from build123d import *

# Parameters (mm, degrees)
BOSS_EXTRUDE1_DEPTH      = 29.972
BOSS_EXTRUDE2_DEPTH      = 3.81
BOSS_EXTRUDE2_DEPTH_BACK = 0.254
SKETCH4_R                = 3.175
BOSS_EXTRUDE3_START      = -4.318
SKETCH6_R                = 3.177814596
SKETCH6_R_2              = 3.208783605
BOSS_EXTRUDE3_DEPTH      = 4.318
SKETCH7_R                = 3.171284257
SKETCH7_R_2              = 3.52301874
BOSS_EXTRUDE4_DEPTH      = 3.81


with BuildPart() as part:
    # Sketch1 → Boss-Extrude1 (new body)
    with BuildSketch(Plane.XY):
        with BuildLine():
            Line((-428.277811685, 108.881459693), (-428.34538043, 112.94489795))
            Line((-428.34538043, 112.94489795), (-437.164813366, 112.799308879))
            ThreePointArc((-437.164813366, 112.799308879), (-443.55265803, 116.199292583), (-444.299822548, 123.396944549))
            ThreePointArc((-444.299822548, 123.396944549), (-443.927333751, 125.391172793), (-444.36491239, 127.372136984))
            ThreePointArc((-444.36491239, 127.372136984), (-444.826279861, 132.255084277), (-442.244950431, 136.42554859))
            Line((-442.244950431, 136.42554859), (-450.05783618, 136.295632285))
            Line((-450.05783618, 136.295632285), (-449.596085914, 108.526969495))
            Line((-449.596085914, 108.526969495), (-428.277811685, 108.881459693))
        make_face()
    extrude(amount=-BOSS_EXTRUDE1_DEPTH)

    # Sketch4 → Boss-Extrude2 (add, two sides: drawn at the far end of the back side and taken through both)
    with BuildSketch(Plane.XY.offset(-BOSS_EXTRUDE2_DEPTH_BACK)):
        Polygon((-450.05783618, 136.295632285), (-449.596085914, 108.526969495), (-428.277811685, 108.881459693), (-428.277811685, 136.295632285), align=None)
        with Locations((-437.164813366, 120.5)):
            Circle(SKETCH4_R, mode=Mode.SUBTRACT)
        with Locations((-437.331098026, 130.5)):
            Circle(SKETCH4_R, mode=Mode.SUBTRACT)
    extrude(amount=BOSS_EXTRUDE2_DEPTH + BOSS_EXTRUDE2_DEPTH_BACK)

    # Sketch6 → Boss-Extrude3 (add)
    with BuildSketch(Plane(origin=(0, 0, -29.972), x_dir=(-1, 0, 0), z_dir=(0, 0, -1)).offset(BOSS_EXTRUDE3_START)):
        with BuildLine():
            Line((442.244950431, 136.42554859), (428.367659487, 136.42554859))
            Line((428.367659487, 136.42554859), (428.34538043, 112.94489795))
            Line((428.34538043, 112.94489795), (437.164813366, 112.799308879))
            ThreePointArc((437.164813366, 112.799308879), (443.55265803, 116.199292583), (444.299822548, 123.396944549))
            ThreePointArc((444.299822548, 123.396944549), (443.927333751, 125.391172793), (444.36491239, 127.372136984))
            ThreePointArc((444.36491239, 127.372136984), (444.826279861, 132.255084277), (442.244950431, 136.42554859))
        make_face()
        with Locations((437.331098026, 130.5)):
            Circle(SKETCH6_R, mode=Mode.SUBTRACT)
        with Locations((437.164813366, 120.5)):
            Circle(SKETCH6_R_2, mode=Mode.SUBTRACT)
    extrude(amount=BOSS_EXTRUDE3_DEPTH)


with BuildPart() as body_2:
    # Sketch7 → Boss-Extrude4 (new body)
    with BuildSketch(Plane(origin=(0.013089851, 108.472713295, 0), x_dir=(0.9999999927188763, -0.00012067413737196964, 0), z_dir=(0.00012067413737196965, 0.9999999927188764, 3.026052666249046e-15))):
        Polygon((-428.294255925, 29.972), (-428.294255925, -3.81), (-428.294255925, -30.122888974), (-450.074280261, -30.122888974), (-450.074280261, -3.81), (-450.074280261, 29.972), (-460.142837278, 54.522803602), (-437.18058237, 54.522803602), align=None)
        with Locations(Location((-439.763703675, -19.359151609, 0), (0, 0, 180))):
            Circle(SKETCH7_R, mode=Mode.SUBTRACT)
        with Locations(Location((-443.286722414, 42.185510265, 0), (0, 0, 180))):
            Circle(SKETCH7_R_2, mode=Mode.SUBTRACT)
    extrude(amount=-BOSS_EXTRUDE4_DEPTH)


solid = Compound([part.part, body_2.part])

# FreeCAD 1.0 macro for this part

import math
import FreeCAD as App
import Part
import Sketcher
from FreeCAD import Vector
Q = App.Units.Quantity

doc = App.newDocument("Part")
params = doc.addObject("Spreadsheet::Sheet", "Params")
for row, (alias, value) in enumerate([
    ("sketch1_radius", "0.2 in"),
    ("sketch1_length", "0.16 in"),
    ("pad1_length", "1.18 in"),
    ("sketch2_diameter", "0.25 in"),
    ("pad2_length", "0.15 in"),
    ("pad2_length2", "0.01 in"),
    ("sketch3_radius", "0.2 in"),
    ("pad3_length", "0.17 in"),
    ("pad4_length", "0.15 in"),
], start=1):
    params.set(f"A{row}", alias)
    params.set(f"B{row}", "=" + value)
    params.setAlias(f"B{row}", alias)

body = doc.addObject("PartDesign::Body", "Body")

# Sketch on XY plane
sketch1 = body.newObject("Sketcher::SketchObject", "Sketch")
sketch1.AttachmentSupport = (doc.getObject("XY_Plane"), [""])
sketch1.MapMode = "FlatFace"
sketch1.addGeometry([
    Part.LineSegment(Vector(-428.3, 108.9, 0), Vector(-428.3, 112.9, 0)),  # 0
    Part.LineSegment(Vector(-428.3, 112.9, 0), Vector(-437.2, 112.8, 0)),  # 1
    Part.ArcOfCircle(Part.Circle(Vector(-437.2, 120.5, 0), Vector(0, 0, 1), 7.7), math.radians(158), math.radians(270)),  # 2
    Part.ArcOfCircle(Part.Circle(Vector(-449, 125.3, 0), Vector(0, 0, 1), 5.1), math.radians(-22), math.radians(24)),  # 3
    Part.ArcOfCircle(Part.Circle(Vector(-437.3, 130.5, 0), Vector(0, 0, 1), 7.7), math.radians(130), math.radians(204)),  # 4
    Part.LineSegment(Vector(-442.2, 136.4, 0), Vector(-450.1, 136.3, 0)),  # 5
    Part.LineSegment(Vector(-450.1, 136.3, 0), Vector(-449.6, 108.5, 0)),  # 6
    Part.LineSegment(Vector(-449.6, 108.5, 0), Vector(-428.3, 108.9, 0)),  # 7
], False)
sketch1.addConstraint([
    Sketcher.Constraint("Coincident", 0, 2, 1, 1),
    Sketcher.Constraint("Coincident", 1, 2, 2, 2),
    Sketcher.Constraint("Tangent", 2, 1, 3, 1),
    Sketcher.Constraint("Tangent", 3, 2, 4, 2),
    Sketcher.Constraint("Coincident", 4, 1, 5, 1),
    Sketcher.Constraint("Coincident", 5, 2, 6, 1),
    Sketcher.Constraint("Coincident", 6, 2, 7, 1),
    Sketcher.Constraint("Coincident", 7, 2, 0, 1),
    Sketcher.Constraint("Perpendicular", 0, 5),
    Sketcher.Constraint("Perpendicular", 5, 6),
    Sketcher.Constraint("Perpendicular", 6, 7),
    Sketcher.Constraint("Vertical", 2, 3, 1, 2),
    Sketcher.Constraint("Radius", 3, Q("0.2 in")),
    Sketcher.Constraint("Distance", 0, Q("0.16 in")),
    Sketcher.Constraint("Radius", 2, 7.700691),
    Sketcher.Constraint("Radius", 4, 7.697926),
    Sketcher.Constraint("Distance", 6, 27.772502),
    Sketcher.Constraint("DistanceY", -1, 1, 2, 3, 120.5),
    Sketcher.Constraint("DistanceX", 4, 3, -1, 1, 437.331098),
    Sketcher.Constraint("DistanceY", -1, 1, 4, 3, 130.5),
    Sketcher.Constraint("DistanceX", 3, 2, 2, 3, 7.200099),
    Sketcher.Constraint("DistanceX", 1, 2, 7, 2, 8.887002),
    Sketcher.Constraint("Distance", 7, 21.321221),
    Sketcher.Constraint("DistanceX", 0, 2, -1, 1, 428.34538),
    Sketcher.Constraint("DistanceX", 4, 1, -1, 1, 442.24495),
])
sketch1.setExpression("Constraints[12]", "Params.sketch1_radius")
sketch1.setExpression("Constraints[13]", "Params.sketch1_length")
pad1 = body.newObject("PartDesign::Pad", "Pad")
pad1.Profile = sketch1
pad1.setExpression("Length", "Params.pad1_length")
pad1.Reversed = True

# Sketch on XY plane
sketch2 = body.newObject("Sketcher::SketchObject", "Sketch001")
sketch2.AttachmentSupport = (doc.getObject("XY_Plane"), [""])
sketch2.MapMode = "FlatFace"
sketch2.addGeometry([
    Part.LineSegment(Vector(-450.1, 136.3, 0), Vector(-449.6, 108.5, 0)),  # 0
    Part.LineSegment(Vector(-449.6, 108.5, 0), Vector(-428.3, 108.9, 0)),  # 1
    Part.LineSegment(Vector(-428.3, 108.9, 0), Vector(-428.3, 136.3, 0)),  # 2
    Part.LineSegment(Vector(-428.3, 136.3, 0), Vector(-450.1, 136.3, 0)),  # 3
    Part.Circle(Vector(-437.2, 120.5, 0), Vector(0, 0, 1), 3.2),  # 4
    Part.Circle(Vector(-437.3, 130.5, 0), Vector(0, 0, 1), 3.2),  # 5
], False)
sketch2.addConstraint([
    Sketcher.Constraint("Coincident", 0, 2, 1, 1),
    Sketcher.Constraint("Coincident", 1, 2, 2, 1),
    Sketcher.Constraint("Coincident", 2, 2, 3, 1),
    Sketcher.Constraint("Coincident", 3, 2, 0, 1),
    Sketcher.Constraint("Vertical", 2),
    Sketcher.Constraint("Horizontal", 3),
    Sketcher.Constraint("Equal", 4, 5),
    Sketcher.Constraint("Perpendicular", 0, 1),
    Sketcher.Constraint("Diameter", 4, Q("0.25 in")),
    Sketcher.Constraint("Distance", 0, 27.772502),
    Sketcher.Constraint("DistanceY", -1, 1, 4, 3, 120.5),
    Sketcher.Constraint("DistanceX", 5, 3, -1, 1, 437.331098),
    Sketcher.Constraint("DistanceY", -1, 1, 5, 3, 130.5),
    Sketcher.Constraint("DistanceX", 4, 3, 1, 2, 8.887002),
    Sketcher.Constraint("Distance", 1, 21.321221),
    Sketcher.Constraint("DistanceX", 3, 2, 3, 1, 21.780024),
    Sketcher.Constraint("DistanceY", -1, 1, 0, 2, 108.526969),
    Sketcher.Constraint("DistanceX", 1, 2, -1, 1, 428.277812),
])
sketch2.setExpression("Constraints[8]", "Params.sketch2_diameter")
pad2 = body.newObject("PartDesign::Pad", "Pad001")
pad2.Profile = sketch2
pad2.Type = "TwoLengths"
pad2.setExpression("Length", "Params.pad2_length")
pad2.setExpression("Length2", "Params.pad2_length2")

# Sketch on XY plane
sketch3 = body.newObject("Sketcher::SketchObject", "Sketch002")
sketch3.AttachmentSupport = (doc.getObject("XY_Plane"), [""])
sketch3.MapMode = "FlatFace"
sketch3.AttachmentOffset = App.Placement(Vector(0, 0, -1.01 * 25.4), App.Rotation())
sketch3.addGeometry([
    Part.LineSegment(Vector(-442.2, 136.4, 0), Vector(-428.4, 136.4, 0)),  # 0
    Part.LineSegment(Vector(-428.4, 136.4, 0), Vector(-428.3, 112.9, 0)),  # 1
    Part.LineSegment(Vector(-428.3, 112.9, 0), Vector(-437.2, 112.8, 0)),  # 2
    Part.ArcOfCircle(Part.Circle(Vector(-437.2, 120.5, 0), Vector(0, 0, 1), 7.7), math.radians(158), math.radians(270)),  # 3
    Part.ArcOfCircle(Part.Circle(Vector(-449, 125.3, 0), Vector(0, 0, 1), 5.1), math.radians(-22), math.radians(24)),  # 4
    Part.ArcOfCircle(Part.Circle(Vector(-437.3, 130.5, 0), Vector(0, 0, 1), 7.7), math.radians(130), math.radians(204)),  # 5
    Part.Circle(Vector(-437.2, 120.5, 0), Vector(0, 0, 1), 3.2),  # 6
    Part.Circle(Vector(-437.3, 130.5, 0), Vector(0, 0, 1), 3.2),  # 7
], False)
sketch3.addConstraint([
    Sketcher.Constraint("Coincident", 0, 2, 1, 1),
    Sketcher.Constraint("Coincident", 1, 2, 2, 1),
    Sketcher.Constraint("Coincident", 2, 2, 3, 2),
    Sketcher.Constraint("Tangent", 3, 1, 4, 1),
    Sketcher.Constraint("Tangent", 4, 2, 5, 2),
    Sketcher.Constraint("Coincident", 5, 1, 0, 1),
    Sketcher.Constraint("Horizontal", 0),
    Sketcher.Constraint("Coincident", 6, 3, 3, 3),
    Sketcher.Constraint("Coincident", 7, 3, 5, 3),
    Sketcher.Constraint("Vertical", 6, 3, 2, 2),
    Sketcher.Constraint("Radius", 4, Q("0.2 in")),
    Sketcher.Constraint("Diameter", 7, 6.355629),
    Sketcher.Constraint("Radius", 3, 7.700691),
    Sketcher.Constraint("Diameter", 6, 6.417567),
    Sketcher.Constraint("Radius", 5, 7.697926),
    Sketcher.Constraint("DistanceX", 0, 1, 0, 2, 13.877291),
    Sketcher.Constraint("DistanceY", -1, 1, 3, 3, 120.5),
    Sketcher.Constraint("DistanceX", 5, 3, -1, 1, 437.331098),
    Sketcher.Constraint("DistanceY", -1, 1, 5, 3, 130.5),
    Sketcher.Constraint("DistanceX", 4, 2, 6, 3, 7.200099),
    Sketcher.Constraint("Distance", 1, 23.480661),
    Sketcher.Constraint("DistanceX", 0, 2, -1, 1, 428.367659),
    Sketcher.Constraint("DistanceX", 1, 2, -1, 1, 428.34538),
])
sketch3.setExpression("Constraints[10]", "Params.sketch3_radius")
pad3 = body.newObject("PartDesign::Pad", "Pad002")
pad3.Profile = sketch3
pad3.setExpression("Length", "Params.pad3_length")
pad3.Reversed = True
body2 = doc.addObject("PartDesign::Body", "Body001")

# Sketch on an angled plane
sketch4 = body2.newObject("Sketcher::SketchObject", "Sketch003")
sketch4.Placement = App.Placement(Vector(0.01309, 108.472713, 0), App.Rotation(Vector(0.999999993, -0.000120674, 0), Vector(0, 0, -1.000000001), Vector(0.000120674, 0.999999993, 0), "ZXY"))
sketch4.addGeometry([
    Part.LineSegment(Vector(-428.3, -30.1, 0), Vector(-428.3, 30, 0)),  # 0
    Part.LineSegment(Vector(-428.3, 30, 0), Vector(-437.2, 54.5, 0)),  # 1
    Part.LineSegment(Vector(-437.2, 54.5, 0), Vector(-460.1, 54.5, 0)),  # 2
    Part.LineSegment(Vector(-460.1, 54.5, 0), Vector(-450.1, 30, 0)),  # 3
    Part.LineSegment(Vector(-450.1, 30, 0), Vector(-450.1, -30.1, 0)),  # 4
    Part.LineSegment(Vector(-450.1, -30.1, 0), Vector(-428.3, -30.1, 0)),  # 5
    Part.Circle(Vector(-439.8, -19.4, 0), Vector(0, 0, 1), 3.2),  # 6
    Part.Circle(Vector(-443.3, 42.2, 0), Vector(0, 0, 1), 3.5),  # 7
], False)
sketch4.addConstraint([
    Sketcher.Constraint("Coincident", 0, 2, 1, 1),
    Sketcher.Constraint("Coincident", 1, 2, 2, 1),
    Sketcher.Constraint("Coincident", 2, 2, 3, 1),
    Sketcher.Constraint("Coincident", 3, 2, 4, 1),
    Sketcher.Constraint("Coincident", 4, 2, 5, 1),
    Sketcher.Constraint("Coincident", 5, 2, 0, 1),
    Sketcher.Constraint("Vertical", 0),
    Sketcher.Constraint("Horizontal", 2),
    Sketcher.Constraint("Vertical", 4),
    Sketcher.Constraint("Horizontal", 5),
    Sketcher.Constraint("Horizontal", 0, 2, 3, 2),
    Sketcher.Constraint("DistanceY", -1, 1, 0, 2, Q("1.18 in")),
    Sketcher.Constraint("Diameter", 6, 6.342569),
    Sketcher.Constraint("Diameter", 7, 7.046037),
    Sketcher.Constraint("DistanceX", 2, 2, 3, 2, Q("0.3963999 in")),
    Sketcher.Constraint("DistanceY", 0, 1, 0, 2, 60.094889),
    Sketcher.Constraint("DistanceY", 4, 2, 7, 3, 72.308399),
    Sketcher.Constraint("Distance", 3, 26.535218),
    Sketcher.Constraint("DistanceX", 2, 2, 2, 1, 22.962255),
    Sketcher.Constraint("DistanceX", 5, 1, 5, 2, 21.780024),
    Sketcher.Constraint("DistanceY", 6, 3, -1, 1, 19.359152),
    Sketcher.Constraint("DistanceX", 3, 2, -1, 1, 450.074281),
    Sketcher.Constraint("DistanceX", 7, 3, 6, 3, 3.523019),
    Sketcher.Constraint("DistanceX", 7, 3, 1, 2, 6.10614),
])
pad4 = body2.newObject("PartDesign::Pad", "Pad003")
pad4.Profile = sketch4
pad4.setExpression("Length", "Params.pad4_length")
pad4.Reversed = True

doc.recompute()
